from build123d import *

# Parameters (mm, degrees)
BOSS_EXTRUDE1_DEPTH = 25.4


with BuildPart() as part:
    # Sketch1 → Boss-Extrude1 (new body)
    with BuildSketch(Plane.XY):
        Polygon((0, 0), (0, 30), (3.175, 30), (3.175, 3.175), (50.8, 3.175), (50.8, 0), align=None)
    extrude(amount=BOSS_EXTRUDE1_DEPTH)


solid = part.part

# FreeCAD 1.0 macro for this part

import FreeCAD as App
import Part
import Sketcher
from FreeCAD import Vector
Q = App.Units.Quantity


def add_polygon(sketch, points):
    """Adds a closed chain of lines whose ends are joined by coincident constraints."""
    first, n = sketch.GeometryCount, len(points)
    for a, b in zip(points, points[1:] + points[:1]):
        sketch.addGeometry(Part.LineSegment(App.Vector(*a, 0), App.Vector(*b, 0)), False)
    for i in range(n):
        sketch.addConstraint(Sketcher.Constraint("Coincident", first + i, 2, first + (i + 1) % n, 1))

doc = App.newDocument("Part")
body = doc.addObject("PartDesign::Body", "Body")

# Sketch on XY plane
sketch1 = body.newObject("Sketcher::SketchObject", "Sketch")
sketch1.AttachmentSupport = (doc.getObject("XY_Plane"), [""])
sketch1.MapMode = "FlatFace"
add_polygon(sketch1, [(0, 30), (0, 0), (50.8, 0), (50.8, 3.175), (3.175, 3.175), (3.175, 30)])  # lines 0-5
sketch1.addConstraint([
    Sketcher.Constraint("Vertical", 0),
    Sketcher.Constraint("Horizontal", 1),
    Sketcher.Constraint("Vertical", 2),
    Sketcher.Constraint("Horizontal", 3),
    Sketcher.Constraint("Vertical", 4),
    Sketcher.Constraint("Horizontal", 5),
    Sketcher.Constraint("Coincident", 0, 2, -1, 1),
    Sketcher.Constraint("Equal", 5, 2),
    Sketcher.Constraint("DistanceX", 1, 1, 1, 2, Q("2 in")),
    Sketcher.Constraint("DistanceX", 3, 2, 3, 1, Q("1.875 in")),
    Sketcher.Constraint("DistanceY", 0, 2, 0, 1, Q("30 mm")),
])
pad1 = body.newObject("PartDesign::Pad", "Pad")
pad1.Profile = sketch1
pad1.Length = Q("1 in")

doc.recompute()
